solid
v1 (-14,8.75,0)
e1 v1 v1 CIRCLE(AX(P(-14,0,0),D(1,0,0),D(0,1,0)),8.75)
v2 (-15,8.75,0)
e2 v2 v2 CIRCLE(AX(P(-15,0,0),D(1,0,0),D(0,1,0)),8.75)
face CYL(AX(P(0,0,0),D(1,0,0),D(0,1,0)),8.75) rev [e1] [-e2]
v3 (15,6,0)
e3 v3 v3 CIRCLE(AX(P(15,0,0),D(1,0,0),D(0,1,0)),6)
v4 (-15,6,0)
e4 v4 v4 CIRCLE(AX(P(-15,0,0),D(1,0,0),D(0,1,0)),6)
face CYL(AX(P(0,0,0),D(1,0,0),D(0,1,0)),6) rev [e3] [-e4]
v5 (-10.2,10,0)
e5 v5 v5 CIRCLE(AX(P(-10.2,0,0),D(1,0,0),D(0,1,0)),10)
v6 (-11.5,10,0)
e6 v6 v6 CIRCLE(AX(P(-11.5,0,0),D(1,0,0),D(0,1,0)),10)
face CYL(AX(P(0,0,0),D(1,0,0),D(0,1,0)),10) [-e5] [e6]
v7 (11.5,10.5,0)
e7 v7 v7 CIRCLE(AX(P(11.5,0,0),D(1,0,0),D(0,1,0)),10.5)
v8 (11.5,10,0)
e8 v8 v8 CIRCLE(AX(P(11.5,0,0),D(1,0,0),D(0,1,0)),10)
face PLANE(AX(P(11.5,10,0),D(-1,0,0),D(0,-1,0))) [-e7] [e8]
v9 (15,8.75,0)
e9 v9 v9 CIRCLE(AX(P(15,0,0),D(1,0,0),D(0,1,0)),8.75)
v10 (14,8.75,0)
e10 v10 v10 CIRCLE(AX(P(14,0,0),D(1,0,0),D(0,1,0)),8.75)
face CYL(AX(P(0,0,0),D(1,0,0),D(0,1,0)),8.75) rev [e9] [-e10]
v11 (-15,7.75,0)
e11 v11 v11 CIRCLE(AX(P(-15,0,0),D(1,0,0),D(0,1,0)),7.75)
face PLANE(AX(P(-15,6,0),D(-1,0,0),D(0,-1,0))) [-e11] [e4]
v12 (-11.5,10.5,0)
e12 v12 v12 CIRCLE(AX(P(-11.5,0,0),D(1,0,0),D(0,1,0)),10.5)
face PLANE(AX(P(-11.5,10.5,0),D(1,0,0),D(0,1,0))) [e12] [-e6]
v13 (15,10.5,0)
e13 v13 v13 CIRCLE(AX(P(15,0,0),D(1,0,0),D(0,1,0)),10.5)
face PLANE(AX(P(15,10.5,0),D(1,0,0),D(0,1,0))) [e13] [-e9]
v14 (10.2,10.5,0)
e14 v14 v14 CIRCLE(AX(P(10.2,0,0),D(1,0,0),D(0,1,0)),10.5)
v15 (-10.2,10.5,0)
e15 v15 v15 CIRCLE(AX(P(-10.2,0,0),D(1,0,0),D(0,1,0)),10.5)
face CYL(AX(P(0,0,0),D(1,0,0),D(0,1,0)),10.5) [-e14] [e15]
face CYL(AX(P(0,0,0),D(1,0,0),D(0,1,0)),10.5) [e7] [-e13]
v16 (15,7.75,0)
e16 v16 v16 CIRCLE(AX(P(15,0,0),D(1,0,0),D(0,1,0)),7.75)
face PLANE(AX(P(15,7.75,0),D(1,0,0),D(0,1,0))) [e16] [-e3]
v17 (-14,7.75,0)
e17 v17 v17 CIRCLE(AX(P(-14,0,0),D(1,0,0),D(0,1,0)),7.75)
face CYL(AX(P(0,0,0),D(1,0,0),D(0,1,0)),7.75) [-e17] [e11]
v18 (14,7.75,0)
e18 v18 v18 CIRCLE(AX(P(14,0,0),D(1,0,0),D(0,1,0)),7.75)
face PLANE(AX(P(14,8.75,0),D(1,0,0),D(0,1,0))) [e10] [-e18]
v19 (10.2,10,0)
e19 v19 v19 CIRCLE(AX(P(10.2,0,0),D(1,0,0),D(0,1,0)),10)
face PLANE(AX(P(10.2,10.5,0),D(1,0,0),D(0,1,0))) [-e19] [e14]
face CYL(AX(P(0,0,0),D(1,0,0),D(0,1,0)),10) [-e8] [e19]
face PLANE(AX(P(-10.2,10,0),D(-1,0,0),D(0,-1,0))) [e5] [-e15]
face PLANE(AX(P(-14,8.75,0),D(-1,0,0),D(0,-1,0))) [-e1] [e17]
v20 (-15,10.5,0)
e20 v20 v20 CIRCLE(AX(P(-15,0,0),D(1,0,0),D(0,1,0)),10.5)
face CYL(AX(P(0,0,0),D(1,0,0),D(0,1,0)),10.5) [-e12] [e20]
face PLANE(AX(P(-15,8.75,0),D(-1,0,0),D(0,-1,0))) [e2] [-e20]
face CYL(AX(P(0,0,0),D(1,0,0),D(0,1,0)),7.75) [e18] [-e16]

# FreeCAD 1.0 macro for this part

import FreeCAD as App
import Part
import Sketcher
from FreeCAD import Vector

doc = App.newDocument("Part")
body = doc.addObject("PartDesign::Body", "Body")

# Sketch on XY plane
sketch1 = body.newObject("Sketcher::SketchObject", "Sketch")
sketch1.AttachmentSupport = (doc.getObject("XY_Plane"), [""])
sketch1.MapMode = "FlatFace"
sketch1.addGeometry([
    Part.LineSegment(Vector(-11.5, 10.5, 0), Vector(-15, 10.5, 0)),  # 0
    Part.LineSegment(Vector(-15, 10.5, 0), Vector(-15, 8.75, 0)),  # 1
    Part.LineSegment(Vector(-15, 8.75, 0), Vector(-14, 8.75, 0)),  # 2
    Part.LineSegment(Vector(-14, 8.75, 0), Vector(-14, 7.75, 0)),  # 3
    Part.LineSegment(Vector(-14, 7.75, 0), Vector(-15, 7.75, 0)),  # 4
    Part.LineSegment(Vector(-15, 7.75, 0), Vector(-15, 6, 0)),  # 5
    Part.LineSegment(Vector(-15, 6, 0), Vector(15, 6, 0)),  # 6
    Part.LineSegment(Vector(15, 6, 0), Vector(15, 7.75, 0)),  # 7
    Part.LineSegment(Vector(15, 7.75, 0), Vector(14, 7.75, 0)),  # 8
    Part.LineSegment(Vector(14, 7.75, 0), Vector(14, 8.75, 0)),  # 9
    Part.LineSegment(Vector(14, 8.75, 0), Vector(15, 8.75, 0)),  # 10
    Part.LineSegment(Vector(15, 8.75, 0), Vector(15, 10.5, 0)),  # 11
    Part.LineSegment(Vector(15, 10.5, 0), Vector(11.5, 10.5, 0)),  # 12
    Part.LineSegment(Vector(11.5, 10.5, 0), Vector(11.5, 10, 0)),  # 13
    Part.LineSegment(Vector(11.5, 10, 0), Vector(10.2, 10, 0)),  # 14
    Part.LineSegment(Vector(10.2, 10, 0), Vector(10.2, 10.5, 0)),  # 15
    Part.LineSegment(Vector(10.2, 10.5, 0), Vector(-10.2, 10.5, 0)),  # 16
    Part.LineSegment(Vector(-10.2, 10.5, 0), Vector(-10.2, 10, 0)),  # 17
    Part.LineSegment(Vector(-10.2, 10, 0), Vector(-11.5, 10, 0)),  # 18
    Part.LineSegment(Vector(-11.5, 10, 0), Vector(-11.5, 10.5, 0)),  # 19
], False)
sketch1.addConstraint([
    Sketcher.Constraint("Coincident", 0, 2, 1, 1),
    Sketcher.Constraint("Coincident", 1, 2, 2, 1),
    Sketcher.Constraint("Coincident", 2, 2, 3, 1),
    Sketcher.Constraint("Coincident", 3, 2, 4, 1),
    Sketcher.Constraint("Coincident", 4, 2, 5, 1),
    Sketcher.Constraint("Coincident", 5, 2, 6, 1),
    Sketcher.Constraint("Coincident", 6, 2, 7, 1),
    Sketcher.Constraint("Coincident", 7, 2, 8, 1),
    Sketcher.Constraint("Coincident", 8, 2, 9, 1),
    Sketcher.Constraint("Coincident", 9, 2, 10, 1),
    Sketcher.Constraint("Coincident", 10, 2, 11, 1),
    Sketcher.Constraint("Coincident", 11, 2, 12, 1),
    Sketcher.Constraint("Coincident", 12, 2, 13, 1),
    Sketcher.Constraint("Coincident", 13, 2, 14, 1),
    Sketcher.Constraint("Coincident", 14, 2, 15, 1),
    Sketcher.Constraint("Coincident", 15, 2, 16, 1),
    Sketcher.Constraint("Coincident", 16, 2, 17, 1),
    Sketcher.Constraint("Coincident", 17, 2, 18, 1),
    Sketcher.Constraint("Coincident", 18, 2, 19, 1),
    Sketcher.Constraint("Coincident", 19, 2, 0, 1),
    Sketcher.Constraint("Horizontal", 0),
    Sketcher.Constraint("Vertical", 1),
    Sketcher.Constraint("Horizontal", 2),
    Sketcher.Constraint("Vertical", 3),
    Sketcher.Constraint("Horizontal", 4),
    Sketcher.Constraint("Vertical", 5),
    Sketcher.Constraint("Horizontal", 6),
    Sketcher.Constraint("Vertical", 7),
    Sketcher.Constraint("Horizontal", 8),
    Sketcher.Constraint("Vertical", 9),
    Sketcher.Constraint("Horizontal", 10),
    Sketcher.Constraint("Vertical", 11),
    Sketcher.Constraint("Horizontal", 12),
    Sketcher.Constraint("Vertical", 13),
    Sketcher.Constraint("Horizontal", 14),
    Sketcher.Constraint("Vertical", 15),
    Sketcher.Constraint("Horizontal", 16),
    Sketcher.Constraint("Vertical", 17),
    Sketcher.Constraint("Horizontal", 18),
    Sketcher.Constraint("Vertical", 19),
    Sketcher.Constraint("Symmetric", 4, 2, 7, 2, -2),
    Sketcher.Constraint("Symmetric", 2, 2, 9, 2, -2),
    Sketcher.Constraint("Symmetric", 0, 2, 11, 2, -2),
    Sketcher.Constraint("Symmetric", 14, 2, 17, 2, -2),
    Sketcher.Constraint("Horizontal", 12, 2, 15, 2),
    Sketcher.Constraint("Vertical", 1, 2, 4, 2),
    Sketcher.Constraint("Equal", 0, 12),
    Sketcher.Constraint("Equal", 10, 3),
    Sketcher.Constraint("Equal", 1, 5),
    Sketcher.Constraint("DistanceX", 2, 1, 2, 2, 1.0),
    Sketcher.Constraint("DistanceX", 6, 1, 6, 2, 30.0),
    Sketcher.Constraint("DistanceX", 0, 2, 0, 1, 3.5),
    Sketcher.Constraint("DistanceX", 14, 2, 14, 1, 1.3),
    Sketcher.Constraint("DistanceY", 13, 2, 13, 1, 0.5),
    Sketcher.Constraint("DistanceY", -1, 1, 5, 2, 6.0),
    Sketcher.Constraint("DistanceY", -1, 1, 13, 2, 10.0),
])
revolution = body.newObject("PartDesign::Revolution", "Revolution")
revolution.Profile = sketch1
revolution.ReferenceAxis = (sketch1, ["H_Axis"])
revolution.Angle = 360

doc.recompute()
